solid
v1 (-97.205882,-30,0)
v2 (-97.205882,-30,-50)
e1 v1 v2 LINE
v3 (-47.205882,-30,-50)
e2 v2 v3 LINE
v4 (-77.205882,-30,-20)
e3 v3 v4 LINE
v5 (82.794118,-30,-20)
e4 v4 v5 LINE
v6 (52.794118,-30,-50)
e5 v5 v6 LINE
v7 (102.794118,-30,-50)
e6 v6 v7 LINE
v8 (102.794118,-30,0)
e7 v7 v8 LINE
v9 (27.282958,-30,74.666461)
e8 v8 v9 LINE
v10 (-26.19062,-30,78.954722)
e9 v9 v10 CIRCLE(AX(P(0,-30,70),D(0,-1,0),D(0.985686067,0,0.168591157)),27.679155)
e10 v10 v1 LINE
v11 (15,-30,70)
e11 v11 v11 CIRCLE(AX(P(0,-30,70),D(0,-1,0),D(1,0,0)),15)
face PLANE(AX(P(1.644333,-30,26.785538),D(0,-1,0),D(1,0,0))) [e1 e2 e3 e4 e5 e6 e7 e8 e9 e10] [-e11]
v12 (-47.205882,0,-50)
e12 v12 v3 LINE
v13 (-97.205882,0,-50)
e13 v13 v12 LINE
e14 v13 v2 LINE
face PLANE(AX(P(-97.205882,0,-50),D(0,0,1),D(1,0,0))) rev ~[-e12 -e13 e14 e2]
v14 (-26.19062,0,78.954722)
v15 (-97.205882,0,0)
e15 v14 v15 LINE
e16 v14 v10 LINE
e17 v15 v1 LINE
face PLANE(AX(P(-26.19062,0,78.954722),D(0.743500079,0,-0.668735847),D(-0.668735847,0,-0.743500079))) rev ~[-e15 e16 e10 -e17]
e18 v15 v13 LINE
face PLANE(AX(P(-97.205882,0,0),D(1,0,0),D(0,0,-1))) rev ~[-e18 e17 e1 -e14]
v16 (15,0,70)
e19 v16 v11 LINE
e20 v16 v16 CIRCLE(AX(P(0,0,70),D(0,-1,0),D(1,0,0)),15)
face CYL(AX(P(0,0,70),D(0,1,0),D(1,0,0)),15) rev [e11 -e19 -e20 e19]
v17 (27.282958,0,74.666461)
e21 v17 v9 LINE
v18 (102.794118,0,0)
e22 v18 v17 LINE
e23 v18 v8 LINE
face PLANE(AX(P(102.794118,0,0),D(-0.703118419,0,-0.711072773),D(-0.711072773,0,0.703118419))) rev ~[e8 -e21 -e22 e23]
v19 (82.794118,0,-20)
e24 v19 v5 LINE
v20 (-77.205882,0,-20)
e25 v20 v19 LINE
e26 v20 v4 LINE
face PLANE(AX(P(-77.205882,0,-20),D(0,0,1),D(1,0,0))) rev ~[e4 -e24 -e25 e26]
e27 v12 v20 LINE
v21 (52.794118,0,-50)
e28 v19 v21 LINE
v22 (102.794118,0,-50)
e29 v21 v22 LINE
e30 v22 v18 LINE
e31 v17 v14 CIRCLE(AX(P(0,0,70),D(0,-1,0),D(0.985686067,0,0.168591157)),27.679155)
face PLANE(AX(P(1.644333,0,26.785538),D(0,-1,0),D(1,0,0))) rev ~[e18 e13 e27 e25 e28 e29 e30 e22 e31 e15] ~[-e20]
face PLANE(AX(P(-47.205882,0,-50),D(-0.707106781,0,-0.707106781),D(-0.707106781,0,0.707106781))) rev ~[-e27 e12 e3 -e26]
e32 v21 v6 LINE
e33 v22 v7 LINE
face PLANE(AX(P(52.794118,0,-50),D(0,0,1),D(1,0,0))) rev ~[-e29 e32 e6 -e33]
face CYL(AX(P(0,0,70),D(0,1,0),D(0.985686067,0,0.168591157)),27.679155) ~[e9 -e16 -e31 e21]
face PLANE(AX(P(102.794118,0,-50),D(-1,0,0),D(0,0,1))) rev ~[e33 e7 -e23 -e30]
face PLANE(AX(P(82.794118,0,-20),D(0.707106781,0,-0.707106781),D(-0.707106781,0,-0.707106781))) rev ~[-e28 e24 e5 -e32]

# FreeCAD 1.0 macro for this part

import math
import FreeCAD as App
import Part
import Sketcher
from FreeCAD import Vector
Q = App.Units.Quantity

doc = App.newDocument("Part")
body = doc.addObject("PartDesign::Body", "Body")

sketch1 = body.newObject("Sketcher::SketchObject", "Sketch")
sketch1.AttachmentSupport = (doc.getObject("XZ_Plane"), [""])
sketch1.MapMode = "FlatFace"
sketch1.addGeometry(Part.LineSegment(Vector(-26, 79, 0), Vector(-97, 0, 0)), False)
sketch1.addGeometry(Part.LineSegment(Vector(-97, 0, 0), Vector(-97, -50, 0)), False)
sketch1.addGeometry(Part.LineSegment(Vector(-97, -50, 0), Vector(-47, -50, 0)), False)
sketch1.addGeometry(Part.LineSegment(Vector(-47, -50, 0), Vector(-77, -20, 0)), False)
sketch1.addGeometry(Part.LineSegment(Vector(-77, -20, 0), Vector(83, -20, 0)), False)
sketch1.addGeometry(Part.LineSegment(Vector(83, -20, 0), Vector(53, -50, 0)), False)
sketch1.addGeometry(Part.LineSegment(Vector(53, -50, 0), Vector(103, -50, 0)), False)
sketch1.addGeometry(Part.LineSegment(Vector(103, -50, 0), Vector(103, 0, 0)), False)
sketch1.addGeometry(Part.LineSegment(Vector(103, 0, 0), Vector(27, 75, 0)), False)
sketch1.addGeometry(Part.ArcOfCircle(Part.Circle(Vector(0, 70, 0), Vector(0, 0, 1), 28), math.radians(10), math.radians(161)), False)
sketch1.addGeometry(Part.Circle(Vector(0, 70, 0), Vector(0, 0, 1), 15), False)
sketch1.addConstraint(Sketcher.Constraint("Coincident", 0, 2, 1, 1))
sketch1.addConstraint(Sketcher.Constraint("Coincident", 1, 2, 2, 1))
sketch1.addConstraint(Sketcher.Constraint("Coincident", 2, 2, 3, 1))
sketch1.addConstraint(Sketcher.Constraint("Coincident", 3, 2, 4, 1))
sketch1.addConstraint(Sketcher.Constraint("Coincident", 4, 2, 5, 1))
sketch1.addConstraint(Sketcher.Constraint("Coincident", 5, 2, 6, 1))
sketch1.addConstraint(Sketcher.Constraint("Coincident", 6, 2, 7, 1))
sketch1.addConstraint(Sketcher.Constraint("Coincident", 7, 2, 8, 1))
sketch1.addConstraint(Sketcher.Constraint("Coincident", 8, 2, 9, 1))
sketch1.addConstraint(Sketcher.Constraint("Coincident", 9, 2, 0, 1))
sketch1.addConstraint(Sketcher.Constraint("Vertical", 1))
sketch1.addConstraint(Sketcher.Constraint("Horizontal", 2))
sketch1.addConstraint(Sketcher.Constraint("Horizontal", 4))
sketch1.addConstraint(Sketcher.Constraint("Horizontal", 6))
sketch1.addConstraint(Sketcher.Constraint("Vertical", 7))
sketch1.addConstraint(Sketcher.Constraint("Coincident", 10, 3, 9, 3))
sketch1.addConstraint(Sketcher.Constraint("PointOnObject", 9, 3, -2))
sketch1.addConstraint(Sketcher.Constraint("PointOnObject", 0, 2, -1))
sketch1.addConstraint(Sketcher.Constraint("PointOnObject", 7, 2, -1))
sketch1.addConstraint(Sketcher.Constraint("Perpendicular", 3, 5))
sketch1.addConstraint(Sketcher.Constraint("Horizontal", 2, 2, 5, 2))
sketch1.addConstraint(Sketcher.Constraint("Equal", 2, 6))
sketch1.addConstraint(Sketcher.Constraint("Equal", 6, 1))
sketch1.addConstraint(Sketcher.Constraint("Equal", 3, 5))
sketch1.addConstraint(Sketcher.Constraint("Equal", 0, 8))
sketch1.addConstraint(Sketcher.Constraint("Diameter", 10, Q("30 mm")))
sketch1.addConstraint(Sketcher.Constraint("DistanceX", 2, 1, 2, 2, Q("50 mm")))
sketch1.addConstraint(Sketcher.Constraint("DistanceX", 4, 1, 4, 2, Q("160 mm")))
sketch1.addConstraint(Sketcher.Constraint("DistanceY", -1, 1, 9, 3, Q("70 mm")))
sketch1.addConstraint(Sketcher.Constraint("DistanceY", 3, 2, -1, 1, Q("20 mm")))
sketch1.addConstraint(Sketcher.Constraint("Radius", 9, Q("27.679155 mm")))
sketch1.addConstraint(Sketcher.Constraint("DistanceX", -1, 1, 8, 2, Q("27.282958 mm")))
sketch1.addConstraint(Sketcher.Constraint("DistanceX", 9, 2, -1, 1, Q("26.19062 mm")))
pad1 = body.newObject("PartDesign::Pad", "Pad")
pad1.Profile = sketch1
pad1.Length = 30

doc.recompute()
